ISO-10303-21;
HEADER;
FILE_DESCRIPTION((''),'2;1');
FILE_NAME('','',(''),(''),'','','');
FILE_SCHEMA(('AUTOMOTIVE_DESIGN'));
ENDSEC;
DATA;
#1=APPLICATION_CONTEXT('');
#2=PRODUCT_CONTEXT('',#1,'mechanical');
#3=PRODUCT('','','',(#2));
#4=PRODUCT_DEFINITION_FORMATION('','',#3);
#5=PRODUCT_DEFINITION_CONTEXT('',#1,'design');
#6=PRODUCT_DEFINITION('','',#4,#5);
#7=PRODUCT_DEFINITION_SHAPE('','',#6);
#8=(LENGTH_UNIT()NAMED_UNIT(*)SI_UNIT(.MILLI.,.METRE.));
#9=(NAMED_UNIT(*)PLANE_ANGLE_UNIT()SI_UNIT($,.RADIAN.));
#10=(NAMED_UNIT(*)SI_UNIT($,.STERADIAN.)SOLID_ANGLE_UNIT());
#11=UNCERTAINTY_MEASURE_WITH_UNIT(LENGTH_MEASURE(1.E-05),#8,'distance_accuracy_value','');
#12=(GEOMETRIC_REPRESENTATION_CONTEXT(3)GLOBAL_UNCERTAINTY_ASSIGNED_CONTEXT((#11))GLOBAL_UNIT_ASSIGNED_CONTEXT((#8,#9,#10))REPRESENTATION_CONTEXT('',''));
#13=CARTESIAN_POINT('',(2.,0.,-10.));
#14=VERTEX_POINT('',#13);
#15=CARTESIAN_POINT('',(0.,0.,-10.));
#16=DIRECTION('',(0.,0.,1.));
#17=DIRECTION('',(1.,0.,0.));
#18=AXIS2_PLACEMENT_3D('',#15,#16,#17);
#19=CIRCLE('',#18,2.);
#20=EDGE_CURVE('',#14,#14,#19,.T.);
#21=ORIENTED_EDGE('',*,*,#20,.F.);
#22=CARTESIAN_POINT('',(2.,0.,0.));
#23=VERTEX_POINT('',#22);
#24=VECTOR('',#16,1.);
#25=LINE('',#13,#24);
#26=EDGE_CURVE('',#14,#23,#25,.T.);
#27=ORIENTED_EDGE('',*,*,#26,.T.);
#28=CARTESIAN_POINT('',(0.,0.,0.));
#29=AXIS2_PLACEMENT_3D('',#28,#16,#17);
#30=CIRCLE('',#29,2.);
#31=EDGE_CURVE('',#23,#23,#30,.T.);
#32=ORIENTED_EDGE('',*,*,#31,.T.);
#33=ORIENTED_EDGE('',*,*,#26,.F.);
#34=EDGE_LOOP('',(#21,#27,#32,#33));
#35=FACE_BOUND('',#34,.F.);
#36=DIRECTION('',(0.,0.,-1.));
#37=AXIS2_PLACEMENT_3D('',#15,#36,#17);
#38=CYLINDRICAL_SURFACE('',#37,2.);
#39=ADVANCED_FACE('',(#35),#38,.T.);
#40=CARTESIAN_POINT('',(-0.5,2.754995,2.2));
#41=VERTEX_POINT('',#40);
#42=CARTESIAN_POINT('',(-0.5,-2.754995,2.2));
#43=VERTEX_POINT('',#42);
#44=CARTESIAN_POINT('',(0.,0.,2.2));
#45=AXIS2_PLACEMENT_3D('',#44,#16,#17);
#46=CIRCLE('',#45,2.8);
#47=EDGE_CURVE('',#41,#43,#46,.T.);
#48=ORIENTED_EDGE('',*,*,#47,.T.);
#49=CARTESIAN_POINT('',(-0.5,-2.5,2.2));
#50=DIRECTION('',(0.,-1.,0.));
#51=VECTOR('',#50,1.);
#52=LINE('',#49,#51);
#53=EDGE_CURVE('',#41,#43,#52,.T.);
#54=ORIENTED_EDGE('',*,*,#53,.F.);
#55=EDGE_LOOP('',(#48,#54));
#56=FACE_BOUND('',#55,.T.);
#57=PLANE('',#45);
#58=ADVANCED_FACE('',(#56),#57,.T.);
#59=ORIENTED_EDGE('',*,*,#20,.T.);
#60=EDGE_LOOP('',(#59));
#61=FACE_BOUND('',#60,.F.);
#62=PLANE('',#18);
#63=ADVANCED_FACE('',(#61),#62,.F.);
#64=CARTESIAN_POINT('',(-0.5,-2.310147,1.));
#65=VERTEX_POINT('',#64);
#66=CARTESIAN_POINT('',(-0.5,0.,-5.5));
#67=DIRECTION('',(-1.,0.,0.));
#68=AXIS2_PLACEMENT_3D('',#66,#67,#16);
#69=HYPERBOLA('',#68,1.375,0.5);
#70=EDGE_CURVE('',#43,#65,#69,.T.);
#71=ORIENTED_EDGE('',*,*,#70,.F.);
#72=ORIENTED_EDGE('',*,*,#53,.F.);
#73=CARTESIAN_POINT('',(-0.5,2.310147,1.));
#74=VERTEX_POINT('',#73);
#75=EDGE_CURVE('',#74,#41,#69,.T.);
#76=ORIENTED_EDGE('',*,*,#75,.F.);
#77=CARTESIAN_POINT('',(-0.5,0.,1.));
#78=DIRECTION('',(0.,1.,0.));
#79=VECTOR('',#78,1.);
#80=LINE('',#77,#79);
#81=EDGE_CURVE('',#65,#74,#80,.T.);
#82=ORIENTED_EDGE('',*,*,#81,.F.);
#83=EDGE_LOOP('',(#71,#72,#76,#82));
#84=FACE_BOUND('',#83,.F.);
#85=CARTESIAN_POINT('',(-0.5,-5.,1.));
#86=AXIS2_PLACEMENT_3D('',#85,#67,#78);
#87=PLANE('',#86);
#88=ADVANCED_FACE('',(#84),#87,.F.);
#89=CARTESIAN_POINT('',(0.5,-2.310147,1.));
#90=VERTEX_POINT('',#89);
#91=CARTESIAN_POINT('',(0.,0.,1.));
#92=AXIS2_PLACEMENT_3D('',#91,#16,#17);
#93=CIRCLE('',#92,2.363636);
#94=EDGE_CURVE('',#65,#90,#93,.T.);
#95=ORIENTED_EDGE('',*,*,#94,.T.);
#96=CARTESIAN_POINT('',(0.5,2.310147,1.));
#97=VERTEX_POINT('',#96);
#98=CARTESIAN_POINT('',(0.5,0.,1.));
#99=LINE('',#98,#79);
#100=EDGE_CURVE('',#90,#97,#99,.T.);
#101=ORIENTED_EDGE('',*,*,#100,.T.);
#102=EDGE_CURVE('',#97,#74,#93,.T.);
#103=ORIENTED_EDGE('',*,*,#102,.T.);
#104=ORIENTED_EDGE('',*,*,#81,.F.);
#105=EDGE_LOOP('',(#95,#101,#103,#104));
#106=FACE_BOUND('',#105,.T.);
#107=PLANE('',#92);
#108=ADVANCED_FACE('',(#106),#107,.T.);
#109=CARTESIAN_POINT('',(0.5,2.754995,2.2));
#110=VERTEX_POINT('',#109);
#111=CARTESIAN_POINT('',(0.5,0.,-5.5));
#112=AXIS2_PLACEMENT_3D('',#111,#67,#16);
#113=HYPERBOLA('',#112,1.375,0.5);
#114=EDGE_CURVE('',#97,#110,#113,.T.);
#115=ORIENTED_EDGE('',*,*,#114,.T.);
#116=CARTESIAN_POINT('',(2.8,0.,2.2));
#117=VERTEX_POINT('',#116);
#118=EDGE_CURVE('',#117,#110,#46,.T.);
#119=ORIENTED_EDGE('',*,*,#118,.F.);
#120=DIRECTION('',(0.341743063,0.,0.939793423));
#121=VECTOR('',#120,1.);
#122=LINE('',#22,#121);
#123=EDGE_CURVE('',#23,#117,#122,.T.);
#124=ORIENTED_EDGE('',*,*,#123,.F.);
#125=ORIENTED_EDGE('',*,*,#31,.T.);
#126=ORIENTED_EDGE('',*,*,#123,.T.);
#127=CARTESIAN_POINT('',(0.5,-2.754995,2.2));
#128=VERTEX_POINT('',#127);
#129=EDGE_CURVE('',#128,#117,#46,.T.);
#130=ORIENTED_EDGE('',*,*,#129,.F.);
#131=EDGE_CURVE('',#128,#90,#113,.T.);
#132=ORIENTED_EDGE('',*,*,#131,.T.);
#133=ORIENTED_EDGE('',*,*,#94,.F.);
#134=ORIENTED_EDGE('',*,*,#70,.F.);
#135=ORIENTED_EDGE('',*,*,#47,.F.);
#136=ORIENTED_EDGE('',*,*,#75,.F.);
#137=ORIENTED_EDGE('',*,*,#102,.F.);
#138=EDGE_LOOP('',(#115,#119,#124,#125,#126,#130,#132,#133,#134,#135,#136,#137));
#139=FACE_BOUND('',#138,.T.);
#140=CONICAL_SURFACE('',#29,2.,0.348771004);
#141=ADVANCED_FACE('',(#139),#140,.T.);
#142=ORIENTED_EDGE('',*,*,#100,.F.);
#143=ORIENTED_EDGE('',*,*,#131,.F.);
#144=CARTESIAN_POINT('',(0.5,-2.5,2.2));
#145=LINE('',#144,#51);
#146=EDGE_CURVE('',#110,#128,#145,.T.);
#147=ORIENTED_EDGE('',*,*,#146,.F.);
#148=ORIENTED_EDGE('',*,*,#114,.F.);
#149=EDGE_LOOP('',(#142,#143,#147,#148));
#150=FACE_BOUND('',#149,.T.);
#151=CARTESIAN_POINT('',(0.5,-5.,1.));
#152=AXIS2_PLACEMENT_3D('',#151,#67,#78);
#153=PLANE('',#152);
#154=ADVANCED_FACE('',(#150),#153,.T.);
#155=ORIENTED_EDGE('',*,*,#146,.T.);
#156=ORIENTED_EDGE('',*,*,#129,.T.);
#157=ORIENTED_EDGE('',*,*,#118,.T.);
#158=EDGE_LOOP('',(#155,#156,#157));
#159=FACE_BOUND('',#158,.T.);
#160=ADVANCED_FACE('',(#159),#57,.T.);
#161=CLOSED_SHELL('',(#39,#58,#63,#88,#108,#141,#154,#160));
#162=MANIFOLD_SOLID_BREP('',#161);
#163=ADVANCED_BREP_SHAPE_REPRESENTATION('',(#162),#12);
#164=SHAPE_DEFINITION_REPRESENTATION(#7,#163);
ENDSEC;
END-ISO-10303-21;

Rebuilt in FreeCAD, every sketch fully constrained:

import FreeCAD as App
import Part
import Sketcher
from FreeCAD import Vector
Q = App.Units.Quantity


def add_polygon(sketch, points):
    """Adds a closed chain of lines whose ends are joined by coincident constraints."""
    first, n = sketch.GeometryCount, len(points)
    for a, b in zip(points, points[1:] + points[:1]):
        sketch.addGeometry(Part.LineSegment(App.Vector(*a, 0), App.Vector(*b, 0)), False)
    for i in range(n):
        sketch.addConstraint(Sketcher.Constraint("Coincident", first + i, 2, first + (i + 1) % n, 1))

doc = App.newDocument("Part")
body = doc.addObject("PartDesign::Body", "Body")

sketch1 = body.newObject("Sketcher::SketchObject", "Sketch")
sketch1.AttachmentSupport = (doc.getObject("XY_Plane"), [""])
sketch1.MapMode = "FlatFace"
sketch1.AttachmentOffset = App.Placement(Vector(0, 0, 1), App.Rotation())
add_polygon(sketch1, [(-0.5, 5), (-0.5, -5), (0.5, -5), (0.5, 5)])
sketch1.addConstraint(Sketcher.Constraint("Vertical", 0))
sketch1.addConstraint(Sketcher.Constraint("Horizontal", 1))
sketch1.addConstraint(Sketcher.Constraint("Vertical", 2))
sketch1.addConstraint(Sketcher.Constraint("Horizontal", 3))
sketch1.addConstraint(Sketcher.Constraint("Symmetric", 0, 2, 2, 2, -1, 1))
sketch1.addConstraint(Sketcher.Constraint("DistanceX", 1, 1, 1, 2, Q("1 mm")))
sketch1.addConstraint(Sketcher.Constraint("DistanceY", 0, 2, 0, 1, Q("10 mm")))
pad1 = body.newObject("PartDesign::Pad", "Pad")
pad1.Profile = sketch1
pad1.Length = 2
body2 = doc.addObject("PartDesign::Body", "Body001")

sketch2 = body2.newObject("Sketcher::SketchObject", "Sketch001")
sketch2.AttachmentSupport = (doc.getObject("XY_Plane001"), [""])
sketch2.MapMode = "FlatFace"
sketch2.AttachmentOffset = App.Placement(Vector(0, 0, -10), App.Rotation())
sketch2.addGeometry(Part.Circle(Vector(0, 0, 0), Vector(0, 0, 1), 2), False)
sketch2.addConstraint(Sketcher.Constraint("Coincident", 0, 3, -1, 1))
sketch2.addConstraint(Sketcher.Constraint("Diameter", 0, Q("4 mm")))
pad2 = body2.newObject("PartDesign::Pad", "Pad001")
pad2.Profile = sketch2
pad2.Length = 10
body3 = doc.addObject("PartDesign::Body", "Body002")

sketch3 = body3.newObject("Sketcher::SketchObject", "Sketch002")
sketch3.AttachmentSupport = (doc.getObject("XZ_Plane002"), [""])
sketch3.MapMode = "FlatFace"
add_polygon(sketch3, [(0, 0), (2, 0), (2.8, 2.2), (0, 2.2)])
sketch3.addConstraint(Sketcher.Constraint("Horizontal", 0))
sketch3.addConstraint(Sketcher.Constraint("Horizontal", 2))
sketch3.addConstraint(Sketcher.Constraint("Vertical", 3))
sketch3.addConstraint(Sketcher.Constraint("Coincident", 3, 2, -1, 1))
sketch3.addConstraint(Sketcher.Constraint("DistanceX", 0, 1, 0, 2, Q("2 mm")))
sketch3.addConstraint(Sketcher.Constraint("DistanceX", 2, 2, 2, 1, Q("2.8 mm")))
sketch3.addConstraint(Sketcher.Constraint("DistanceY", 3, 2, 3, 1, Q("2.2 mm")))
revolution = body3.newObject("PartDesign::Revolution", "Revolution")
revolution.Profile = sketch3
revolution.ReferenceAxis = (sketch3, ["V_Axis"])
revolution.Angle = 360
doc.recompute()

boolean = body3.newObject("PartDesign::Boolean", "Boolean")
boolean.Type = "Fuse"
boolean.addObjects([body2])
doc.recompute()

boolean2 = body3.newObject("PartDesign::Boolean", "Boolean001")
boolean2.Type = "Cut"
boolean2.addObjects([body])

doc.recompute()
